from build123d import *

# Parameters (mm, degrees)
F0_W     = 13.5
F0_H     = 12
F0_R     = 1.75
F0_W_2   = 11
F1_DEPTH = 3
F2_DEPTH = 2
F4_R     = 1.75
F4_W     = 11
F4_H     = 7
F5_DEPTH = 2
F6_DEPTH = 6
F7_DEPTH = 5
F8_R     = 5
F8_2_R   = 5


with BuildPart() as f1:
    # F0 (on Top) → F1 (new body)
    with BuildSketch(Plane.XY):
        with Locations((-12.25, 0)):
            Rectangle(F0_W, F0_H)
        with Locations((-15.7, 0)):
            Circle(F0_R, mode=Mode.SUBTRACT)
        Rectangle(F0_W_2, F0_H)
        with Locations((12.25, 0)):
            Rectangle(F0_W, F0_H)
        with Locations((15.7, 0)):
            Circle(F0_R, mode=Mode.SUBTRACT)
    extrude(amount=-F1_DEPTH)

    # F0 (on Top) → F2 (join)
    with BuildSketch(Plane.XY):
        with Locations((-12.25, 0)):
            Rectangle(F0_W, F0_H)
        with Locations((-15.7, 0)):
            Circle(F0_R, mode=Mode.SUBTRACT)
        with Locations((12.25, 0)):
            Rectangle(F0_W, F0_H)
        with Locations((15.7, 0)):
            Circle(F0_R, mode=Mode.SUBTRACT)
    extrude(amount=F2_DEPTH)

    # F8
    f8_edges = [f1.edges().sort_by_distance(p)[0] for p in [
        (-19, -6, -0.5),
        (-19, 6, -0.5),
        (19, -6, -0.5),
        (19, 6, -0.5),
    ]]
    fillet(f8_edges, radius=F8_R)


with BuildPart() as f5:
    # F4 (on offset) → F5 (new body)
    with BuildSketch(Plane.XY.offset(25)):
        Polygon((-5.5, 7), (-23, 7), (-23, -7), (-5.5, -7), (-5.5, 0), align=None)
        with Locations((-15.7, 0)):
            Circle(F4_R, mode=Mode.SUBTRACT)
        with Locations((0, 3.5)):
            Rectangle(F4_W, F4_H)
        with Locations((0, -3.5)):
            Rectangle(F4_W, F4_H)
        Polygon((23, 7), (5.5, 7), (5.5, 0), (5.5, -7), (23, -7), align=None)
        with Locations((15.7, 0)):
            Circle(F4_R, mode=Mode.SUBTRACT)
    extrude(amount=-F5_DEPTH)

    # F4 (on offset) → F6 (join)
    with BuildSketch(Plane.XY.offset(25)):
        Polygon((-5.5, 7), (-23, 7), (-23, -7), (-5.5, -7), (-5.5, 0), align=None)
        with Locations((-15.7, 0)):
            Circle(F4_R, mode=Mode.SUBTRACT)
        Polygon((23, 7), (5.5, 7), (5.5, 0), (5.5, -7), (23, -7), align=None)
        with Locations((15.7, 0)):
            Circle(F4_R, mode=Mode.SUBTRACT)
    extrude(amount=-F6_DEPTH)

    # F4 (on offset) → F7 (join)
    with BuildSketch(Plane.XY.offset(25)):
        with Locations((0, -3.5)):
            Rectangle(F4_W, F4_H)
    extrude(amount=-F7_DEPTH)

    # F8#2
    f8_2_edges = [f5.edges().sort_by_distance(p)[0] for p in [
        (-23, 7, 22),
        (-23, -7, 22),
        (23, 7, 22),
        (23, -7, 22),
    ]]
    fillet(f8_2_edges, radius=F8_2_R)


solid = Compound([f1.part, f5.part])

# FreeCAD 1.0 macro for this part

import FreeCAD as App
import Part
import Sketcher
from FreeCAD import Vector
Q = App.Units.Quantity


def edges_at(feature, points):
    """Names of the edges that pass closest to the given points."""
    edges = feature.Shape.Edges
    near = lambda p: min(range(len(edges)), key=lambda i: edges[i].distToShape(Part.Vertex(*p))[0])
    return sorted({f"Edge{near(p) + 1}" for p in points})


def add_polygon(sketch, points):
    """Adds a closed chain of lines whose ends are joined by coincident constraints."""
    first, n = sketch.GeometryCount, len(points)
    for a, b in zip(points, points[1:] + points[:1]):
        sketch.addGeometry(Part.LineSegment(App.Vector(*a, 0), App.Vector(*b, 0)), False)
    for i in range(n):
        sketch.addConstraint(Sketcher.Constraint("Coincident", first + i, 2, first + (i + 1) % n, 1))

doc = App.newDocument("Part")
body = doc.addObject("PartDesign::Body", "Body")

sketch1 = body.newObject("Sketcher::SketchObject", "Sketch")
sketch1.AttachmentSupport = (doc.getObject("XY_Plane"), [""])
sketch1.MapMode = "FlatFace"
add_polygon(sketch1, [(-19, 6), (-19, -6), (19, -6), (19, 6)])
sketch1.addGeometry(Part.Circle(Vector(-15.7, 0, 0), Vector(0, 0, 1), 1.8), False)
sketch1.addGeometry(Part.Circle(Vector(15.7, 0, 0), Vector(0, 0, 1), 1.8), False)
sketch1.addConstraint([
    Sketcher.Constraint("Vertical", 0),
    Sketcher.Constraint("Horizontal", 1),
    Sketcher.Constraint("Vertical", 2),
    Sketcher.Constraint("Horizontal", 3),
    Sketcher.Constraint("Equal", 4, 5),
    Sketcher.Constraint("Symmetric", 4, 3, 5, 3, -1, 1),
    Sketcher.Constraint("Symmetric", 0, 2, 2, 2, -1, 1),
    Sketcher.Constraint("PointOnObject", 4, 3, -1),
    Sketcher.Constraint("Diameter", 4, Q("3.5 mm")),
    Sketcher.Constraint("DistanceX", 1, 1, 1, 2, Q("38 mm")),
    Sketcher.Constraint("DistanceY", 0, 2, 0, 1, Q("12 mm")),
    Sketcher.Constraint("DistanceX", 4, 3, -1, 1, Q("15.7 mm")),
])
pad1 = body.newObject("PartDesign::Pad", "Pad")
pad1.Profile = sketch1
pad1.Length = 3
pad1.Reversed = True

sketch2 = body.newObject("Sketcher::SketchObject", "Sketch001")
sketch2.AttachmentSupport = (doc.getObject("XY_Plane"), [""])
sketch2.MapMode = "FlatFace"
add_polygon(sketch2, [(-19, 6), (-19, -6), (-5.5, -6), (-5.5, 6)])
sketch2.addGeometry(Part.Circle(Vector(-15.7, 0, 0), Vector(0, 0, 1), 1.8), False)
add_polygon(sketch2, [(5.5, 6), (5.5, -6), (19, -6), (19, 6)])
sketch2.addGeometry(Part.Circle(Vector(15.7, 0, 0), Vector(0, 0, 1), 1.8), False)
sketch2.addConstraint([
    Sketcher.Constraint("Vertical", 0),
    Sketcher.Constraint("Horizontal", 1),
    Sketcher.Constraint("Vertical", 2),
    Sketcher.Constraint("Horizontal", 3),
    Sketcher.Constraint("Vertical", 5),
    Sketcher.Constraint("Horizontal", 6),
    Sketcher.Constraint("Vertical", 7),
    Sketcher.Constraint("Horizontal", 8),
    Sketcher.Constraint("Equal", 4, 9),
    Sketcher.Constraint("Symmetric", 4, 3, 9, 3, -1, 1),
    Sketcher.Constraint("Symmetric", 2, 2, 5, 2, -1, 1),
    Sketcher.Constraint("Symmetric", 0, 2, 7, 2, -1, 1),
    Sketcher.Constraint("PointOnObject", 4, 3, -1),
    Sketcher.Constraint("Horizontal", 1, 2, 5, 2),
    Sketcher.Constraint("Diameter", 4, Q("3.5 mm")),
    Sketcher.Constraint("DistanceY", 0, 2, 0, 1, Q("12 mm")),
    Sketcher.Constraint("DistanceX", 1, 1, 1, 2, Q("13.5 mm")),
    Sketcher.Constraint("DistanceX", 0, 2, -1, 1, Q("19 mm")),
    Sketcher.Constraint("DistanceX", 4, 3, -1, 1, Q("15.7 mm")),
])
pad2 = body.newObject("PartDesign::Pad", "Pad001")
pad2.Profile = sketch2
pad2.Length = 2
doc.recompute()

fillet = body.newObject("PartDesign::Fillet", "Fillet")
fillet.Base = (pad2, edges_at(pad2, [
    (-19, -6, -0.5),
    (-19, 6, -0.5),
    (19, -6, -0.5),
    (19, 6, -0.5),
]))
fillet.Radius = 5
body2 = doc.addObject("PartDesign::Body", "Body001")

sketch3 = body2.newObject("Sketcher::SketchObject", "Sketch002")
sketch3.AttachmentSupport = (doc.getObject("XY_Plane001"), [""])
sketch3.MapMode = "FlatFace"
sketch3.AttachmentOffset = App.Placement(Vector(0, 0, 25), App.Rotation())
add_polygon(sketch3, [(-23, 7), (-23, -7), (23, -7), (23, 7)])
sketch3.addGeometry(Part.Circle(Vector(-15.7, 0, 0), Vector(0, 0, 1), 1.8), False)
sketch3.addGeometry(Part.Circle(Vector(15.7, 0, 0), Vector(0, 0, 1), 1.8), False)
sketch3.addConstraint([
    Sketcher.Constraint("Vertical", 0),
    Sketcher.Constraint("Horizontal", 1),
    Sketcher.Constraint("Vertical", 2),
    Sketcher.Constraint("Horizontal", 3),
    Sketcher.Constraint("Equal", 4, 5),
    Sketcher.Constraint("Symmetric", 4, 3, 5, 3, -1, 1),
    Sketcher.Constraint("Symmetric", 0, 2, 2, 2, -1, 1),
    Sketcher.Constraint("PointOnObject", 4, 3, -1),
    Sketcher.Constraint("Diameter", 4, Q("3.5 mm")),
    Sketcher.Constraint("DistanceX", 1, 1, 1, 2, Q("46 mm")),
    Sketcher.Constraint("DistanceY", 0, 2, 0, 1, Q("14 mm")),
    Sketcher.Constraint("DistanceX", 4, 3, -1, 1, Q("15.7 mm")),
])
pad3 = body2.newObject("PartDesign::Pad", "Pad002")
pad3.Profile = sketch3
pad3.Length = 2
pad3.Reversed = True

sketch4 = body2.newObject("Sketcher::SketchObject", "Sketch003")
sketch4.AttachmentSupport = (doc.getObject("XY_Plane001"), [""])
sketch4.MapMode = "FlatFace"
sketch4.AttachmentOffset = App.Placement(Vector(0, 0, 25), App.Rotation())
add_polygon(sketch4, [(-5.5, 7), (-23, 7), (-23, -7), (-5.5, -7)])
sketch4.addGeometry(Part.Circle(Vector(-15.7, 0, 0), Vector(0, 0, 1), 1.8), False)
add_polygon(sketch4, [(23, 7), (5.5, 7), (5.5, -7), (23, -7)])
sketch4.addGeometry(Part.Circle(Vector(15.7, 0, 0), Vector(0, 0, 1), 1.8), False)
sketch4.addConstraint([
    Sketcher.Constraint("Horizontal", 0),
    Sketcher.Constraint("Vertical", 1),
    Sketcher.Constraint("Horizontal", 2),
    Sketcher.Constraint("Vertical", 3),
    Sketcher.Constraint("Horizontal", 5),
    Sketcher.Constraint("Vertical", 6),
    Sketcher.Constraint("Horizontal", 7),
    Sketcher.Constraint("Vertical", 8),
    Sketcher.Constraint("Equal", 4, 9),
    Sketcher.Constraint("Symmetric", 4, 3, 9, 3, -1, 1),
    Sketcher.Constraint("Symmetric", 2, 2, 5, 2, -1, 1),
    Sketcher.Constraint("Symmetric", 0, 2, 7, 2, -1, 1),
    Sketcher.Constraint("PointOnObject", 4, 3, -1),
    Sketcher.Constraint("Horizontal", 3, 2, 5, 2),
    Sketcher.Constraint("Diameter", 4, Q("3.5 mm")),
    Sketcher.Constraint("DistanceY", 1, 2, 1, 1, Q("14 mm")),
    Sketcher.Constraint("DistanceX", 0, 2, 0, 1, Q("17.5 mm")),
    Sketcher.Constraint("DistanceX", 0, 2, -1, 1, Q("23 mm")),
    Sketcher.Constraint("DistanceX", 4, 3, -1, 1, Q("15.7 mm")),
])
pad4 = body2.newObject("PartDesign::Pad", "Pad003")
pad4.Profile = sketch4
pad4.Length = 6
pad4.Reversed = True

sketch5 = body2.newObject("Sketcher::SketchObject", "Sketch004")
sketch5.AttachmentSupport = (doc.getObject("XY_Plane001"), [""])
sketch5.MapMode = "FlatFace"
sketch5.AttachmentOffset = App.Placement(Vector(0, 0, 25), App.Rotation())
add_polygon(sketch5, [(-6, 0), (-6, -7), (6, -7), (6, 0)])
sketch5.addConstraint([
    Sketcher.Constraint("Vertical", 0),
    Sketcher.Constraint("Horizontal", 1),
    Sketcher.Constraint("Vertical", 2),
    Sketcher.Constraint("Horizontal", 3),
    Sketcher.Constraint("Symmetric", 2, 2, 3, 2, -1, 1),
    Sketcher.Constraint("DistanceX", 1, 1, 1, 2, Q("11 mm")),
    Sketcher.Constraint("DistanceY", 0, 2, 0, 1, Q("7 mm")),
])
pad5 = body2.newObject("PartDesign::Pad", "Pad004")
pad5.Profile = sketch5
pad5.Length = 5
pad5.Reversed = True
doc.recompute()

fillet2 = body2.newObject("PartDesign::Fillet", "Fillet001")
fillet2.Base = (pad5, edges_at(pad5, [
    (-23, 7, 22),
    (-23, -7, 22),
    (23, 7, 22),
    (23, -7, 22),
]))
fillet2.Radius = 5

doc.recompute()
